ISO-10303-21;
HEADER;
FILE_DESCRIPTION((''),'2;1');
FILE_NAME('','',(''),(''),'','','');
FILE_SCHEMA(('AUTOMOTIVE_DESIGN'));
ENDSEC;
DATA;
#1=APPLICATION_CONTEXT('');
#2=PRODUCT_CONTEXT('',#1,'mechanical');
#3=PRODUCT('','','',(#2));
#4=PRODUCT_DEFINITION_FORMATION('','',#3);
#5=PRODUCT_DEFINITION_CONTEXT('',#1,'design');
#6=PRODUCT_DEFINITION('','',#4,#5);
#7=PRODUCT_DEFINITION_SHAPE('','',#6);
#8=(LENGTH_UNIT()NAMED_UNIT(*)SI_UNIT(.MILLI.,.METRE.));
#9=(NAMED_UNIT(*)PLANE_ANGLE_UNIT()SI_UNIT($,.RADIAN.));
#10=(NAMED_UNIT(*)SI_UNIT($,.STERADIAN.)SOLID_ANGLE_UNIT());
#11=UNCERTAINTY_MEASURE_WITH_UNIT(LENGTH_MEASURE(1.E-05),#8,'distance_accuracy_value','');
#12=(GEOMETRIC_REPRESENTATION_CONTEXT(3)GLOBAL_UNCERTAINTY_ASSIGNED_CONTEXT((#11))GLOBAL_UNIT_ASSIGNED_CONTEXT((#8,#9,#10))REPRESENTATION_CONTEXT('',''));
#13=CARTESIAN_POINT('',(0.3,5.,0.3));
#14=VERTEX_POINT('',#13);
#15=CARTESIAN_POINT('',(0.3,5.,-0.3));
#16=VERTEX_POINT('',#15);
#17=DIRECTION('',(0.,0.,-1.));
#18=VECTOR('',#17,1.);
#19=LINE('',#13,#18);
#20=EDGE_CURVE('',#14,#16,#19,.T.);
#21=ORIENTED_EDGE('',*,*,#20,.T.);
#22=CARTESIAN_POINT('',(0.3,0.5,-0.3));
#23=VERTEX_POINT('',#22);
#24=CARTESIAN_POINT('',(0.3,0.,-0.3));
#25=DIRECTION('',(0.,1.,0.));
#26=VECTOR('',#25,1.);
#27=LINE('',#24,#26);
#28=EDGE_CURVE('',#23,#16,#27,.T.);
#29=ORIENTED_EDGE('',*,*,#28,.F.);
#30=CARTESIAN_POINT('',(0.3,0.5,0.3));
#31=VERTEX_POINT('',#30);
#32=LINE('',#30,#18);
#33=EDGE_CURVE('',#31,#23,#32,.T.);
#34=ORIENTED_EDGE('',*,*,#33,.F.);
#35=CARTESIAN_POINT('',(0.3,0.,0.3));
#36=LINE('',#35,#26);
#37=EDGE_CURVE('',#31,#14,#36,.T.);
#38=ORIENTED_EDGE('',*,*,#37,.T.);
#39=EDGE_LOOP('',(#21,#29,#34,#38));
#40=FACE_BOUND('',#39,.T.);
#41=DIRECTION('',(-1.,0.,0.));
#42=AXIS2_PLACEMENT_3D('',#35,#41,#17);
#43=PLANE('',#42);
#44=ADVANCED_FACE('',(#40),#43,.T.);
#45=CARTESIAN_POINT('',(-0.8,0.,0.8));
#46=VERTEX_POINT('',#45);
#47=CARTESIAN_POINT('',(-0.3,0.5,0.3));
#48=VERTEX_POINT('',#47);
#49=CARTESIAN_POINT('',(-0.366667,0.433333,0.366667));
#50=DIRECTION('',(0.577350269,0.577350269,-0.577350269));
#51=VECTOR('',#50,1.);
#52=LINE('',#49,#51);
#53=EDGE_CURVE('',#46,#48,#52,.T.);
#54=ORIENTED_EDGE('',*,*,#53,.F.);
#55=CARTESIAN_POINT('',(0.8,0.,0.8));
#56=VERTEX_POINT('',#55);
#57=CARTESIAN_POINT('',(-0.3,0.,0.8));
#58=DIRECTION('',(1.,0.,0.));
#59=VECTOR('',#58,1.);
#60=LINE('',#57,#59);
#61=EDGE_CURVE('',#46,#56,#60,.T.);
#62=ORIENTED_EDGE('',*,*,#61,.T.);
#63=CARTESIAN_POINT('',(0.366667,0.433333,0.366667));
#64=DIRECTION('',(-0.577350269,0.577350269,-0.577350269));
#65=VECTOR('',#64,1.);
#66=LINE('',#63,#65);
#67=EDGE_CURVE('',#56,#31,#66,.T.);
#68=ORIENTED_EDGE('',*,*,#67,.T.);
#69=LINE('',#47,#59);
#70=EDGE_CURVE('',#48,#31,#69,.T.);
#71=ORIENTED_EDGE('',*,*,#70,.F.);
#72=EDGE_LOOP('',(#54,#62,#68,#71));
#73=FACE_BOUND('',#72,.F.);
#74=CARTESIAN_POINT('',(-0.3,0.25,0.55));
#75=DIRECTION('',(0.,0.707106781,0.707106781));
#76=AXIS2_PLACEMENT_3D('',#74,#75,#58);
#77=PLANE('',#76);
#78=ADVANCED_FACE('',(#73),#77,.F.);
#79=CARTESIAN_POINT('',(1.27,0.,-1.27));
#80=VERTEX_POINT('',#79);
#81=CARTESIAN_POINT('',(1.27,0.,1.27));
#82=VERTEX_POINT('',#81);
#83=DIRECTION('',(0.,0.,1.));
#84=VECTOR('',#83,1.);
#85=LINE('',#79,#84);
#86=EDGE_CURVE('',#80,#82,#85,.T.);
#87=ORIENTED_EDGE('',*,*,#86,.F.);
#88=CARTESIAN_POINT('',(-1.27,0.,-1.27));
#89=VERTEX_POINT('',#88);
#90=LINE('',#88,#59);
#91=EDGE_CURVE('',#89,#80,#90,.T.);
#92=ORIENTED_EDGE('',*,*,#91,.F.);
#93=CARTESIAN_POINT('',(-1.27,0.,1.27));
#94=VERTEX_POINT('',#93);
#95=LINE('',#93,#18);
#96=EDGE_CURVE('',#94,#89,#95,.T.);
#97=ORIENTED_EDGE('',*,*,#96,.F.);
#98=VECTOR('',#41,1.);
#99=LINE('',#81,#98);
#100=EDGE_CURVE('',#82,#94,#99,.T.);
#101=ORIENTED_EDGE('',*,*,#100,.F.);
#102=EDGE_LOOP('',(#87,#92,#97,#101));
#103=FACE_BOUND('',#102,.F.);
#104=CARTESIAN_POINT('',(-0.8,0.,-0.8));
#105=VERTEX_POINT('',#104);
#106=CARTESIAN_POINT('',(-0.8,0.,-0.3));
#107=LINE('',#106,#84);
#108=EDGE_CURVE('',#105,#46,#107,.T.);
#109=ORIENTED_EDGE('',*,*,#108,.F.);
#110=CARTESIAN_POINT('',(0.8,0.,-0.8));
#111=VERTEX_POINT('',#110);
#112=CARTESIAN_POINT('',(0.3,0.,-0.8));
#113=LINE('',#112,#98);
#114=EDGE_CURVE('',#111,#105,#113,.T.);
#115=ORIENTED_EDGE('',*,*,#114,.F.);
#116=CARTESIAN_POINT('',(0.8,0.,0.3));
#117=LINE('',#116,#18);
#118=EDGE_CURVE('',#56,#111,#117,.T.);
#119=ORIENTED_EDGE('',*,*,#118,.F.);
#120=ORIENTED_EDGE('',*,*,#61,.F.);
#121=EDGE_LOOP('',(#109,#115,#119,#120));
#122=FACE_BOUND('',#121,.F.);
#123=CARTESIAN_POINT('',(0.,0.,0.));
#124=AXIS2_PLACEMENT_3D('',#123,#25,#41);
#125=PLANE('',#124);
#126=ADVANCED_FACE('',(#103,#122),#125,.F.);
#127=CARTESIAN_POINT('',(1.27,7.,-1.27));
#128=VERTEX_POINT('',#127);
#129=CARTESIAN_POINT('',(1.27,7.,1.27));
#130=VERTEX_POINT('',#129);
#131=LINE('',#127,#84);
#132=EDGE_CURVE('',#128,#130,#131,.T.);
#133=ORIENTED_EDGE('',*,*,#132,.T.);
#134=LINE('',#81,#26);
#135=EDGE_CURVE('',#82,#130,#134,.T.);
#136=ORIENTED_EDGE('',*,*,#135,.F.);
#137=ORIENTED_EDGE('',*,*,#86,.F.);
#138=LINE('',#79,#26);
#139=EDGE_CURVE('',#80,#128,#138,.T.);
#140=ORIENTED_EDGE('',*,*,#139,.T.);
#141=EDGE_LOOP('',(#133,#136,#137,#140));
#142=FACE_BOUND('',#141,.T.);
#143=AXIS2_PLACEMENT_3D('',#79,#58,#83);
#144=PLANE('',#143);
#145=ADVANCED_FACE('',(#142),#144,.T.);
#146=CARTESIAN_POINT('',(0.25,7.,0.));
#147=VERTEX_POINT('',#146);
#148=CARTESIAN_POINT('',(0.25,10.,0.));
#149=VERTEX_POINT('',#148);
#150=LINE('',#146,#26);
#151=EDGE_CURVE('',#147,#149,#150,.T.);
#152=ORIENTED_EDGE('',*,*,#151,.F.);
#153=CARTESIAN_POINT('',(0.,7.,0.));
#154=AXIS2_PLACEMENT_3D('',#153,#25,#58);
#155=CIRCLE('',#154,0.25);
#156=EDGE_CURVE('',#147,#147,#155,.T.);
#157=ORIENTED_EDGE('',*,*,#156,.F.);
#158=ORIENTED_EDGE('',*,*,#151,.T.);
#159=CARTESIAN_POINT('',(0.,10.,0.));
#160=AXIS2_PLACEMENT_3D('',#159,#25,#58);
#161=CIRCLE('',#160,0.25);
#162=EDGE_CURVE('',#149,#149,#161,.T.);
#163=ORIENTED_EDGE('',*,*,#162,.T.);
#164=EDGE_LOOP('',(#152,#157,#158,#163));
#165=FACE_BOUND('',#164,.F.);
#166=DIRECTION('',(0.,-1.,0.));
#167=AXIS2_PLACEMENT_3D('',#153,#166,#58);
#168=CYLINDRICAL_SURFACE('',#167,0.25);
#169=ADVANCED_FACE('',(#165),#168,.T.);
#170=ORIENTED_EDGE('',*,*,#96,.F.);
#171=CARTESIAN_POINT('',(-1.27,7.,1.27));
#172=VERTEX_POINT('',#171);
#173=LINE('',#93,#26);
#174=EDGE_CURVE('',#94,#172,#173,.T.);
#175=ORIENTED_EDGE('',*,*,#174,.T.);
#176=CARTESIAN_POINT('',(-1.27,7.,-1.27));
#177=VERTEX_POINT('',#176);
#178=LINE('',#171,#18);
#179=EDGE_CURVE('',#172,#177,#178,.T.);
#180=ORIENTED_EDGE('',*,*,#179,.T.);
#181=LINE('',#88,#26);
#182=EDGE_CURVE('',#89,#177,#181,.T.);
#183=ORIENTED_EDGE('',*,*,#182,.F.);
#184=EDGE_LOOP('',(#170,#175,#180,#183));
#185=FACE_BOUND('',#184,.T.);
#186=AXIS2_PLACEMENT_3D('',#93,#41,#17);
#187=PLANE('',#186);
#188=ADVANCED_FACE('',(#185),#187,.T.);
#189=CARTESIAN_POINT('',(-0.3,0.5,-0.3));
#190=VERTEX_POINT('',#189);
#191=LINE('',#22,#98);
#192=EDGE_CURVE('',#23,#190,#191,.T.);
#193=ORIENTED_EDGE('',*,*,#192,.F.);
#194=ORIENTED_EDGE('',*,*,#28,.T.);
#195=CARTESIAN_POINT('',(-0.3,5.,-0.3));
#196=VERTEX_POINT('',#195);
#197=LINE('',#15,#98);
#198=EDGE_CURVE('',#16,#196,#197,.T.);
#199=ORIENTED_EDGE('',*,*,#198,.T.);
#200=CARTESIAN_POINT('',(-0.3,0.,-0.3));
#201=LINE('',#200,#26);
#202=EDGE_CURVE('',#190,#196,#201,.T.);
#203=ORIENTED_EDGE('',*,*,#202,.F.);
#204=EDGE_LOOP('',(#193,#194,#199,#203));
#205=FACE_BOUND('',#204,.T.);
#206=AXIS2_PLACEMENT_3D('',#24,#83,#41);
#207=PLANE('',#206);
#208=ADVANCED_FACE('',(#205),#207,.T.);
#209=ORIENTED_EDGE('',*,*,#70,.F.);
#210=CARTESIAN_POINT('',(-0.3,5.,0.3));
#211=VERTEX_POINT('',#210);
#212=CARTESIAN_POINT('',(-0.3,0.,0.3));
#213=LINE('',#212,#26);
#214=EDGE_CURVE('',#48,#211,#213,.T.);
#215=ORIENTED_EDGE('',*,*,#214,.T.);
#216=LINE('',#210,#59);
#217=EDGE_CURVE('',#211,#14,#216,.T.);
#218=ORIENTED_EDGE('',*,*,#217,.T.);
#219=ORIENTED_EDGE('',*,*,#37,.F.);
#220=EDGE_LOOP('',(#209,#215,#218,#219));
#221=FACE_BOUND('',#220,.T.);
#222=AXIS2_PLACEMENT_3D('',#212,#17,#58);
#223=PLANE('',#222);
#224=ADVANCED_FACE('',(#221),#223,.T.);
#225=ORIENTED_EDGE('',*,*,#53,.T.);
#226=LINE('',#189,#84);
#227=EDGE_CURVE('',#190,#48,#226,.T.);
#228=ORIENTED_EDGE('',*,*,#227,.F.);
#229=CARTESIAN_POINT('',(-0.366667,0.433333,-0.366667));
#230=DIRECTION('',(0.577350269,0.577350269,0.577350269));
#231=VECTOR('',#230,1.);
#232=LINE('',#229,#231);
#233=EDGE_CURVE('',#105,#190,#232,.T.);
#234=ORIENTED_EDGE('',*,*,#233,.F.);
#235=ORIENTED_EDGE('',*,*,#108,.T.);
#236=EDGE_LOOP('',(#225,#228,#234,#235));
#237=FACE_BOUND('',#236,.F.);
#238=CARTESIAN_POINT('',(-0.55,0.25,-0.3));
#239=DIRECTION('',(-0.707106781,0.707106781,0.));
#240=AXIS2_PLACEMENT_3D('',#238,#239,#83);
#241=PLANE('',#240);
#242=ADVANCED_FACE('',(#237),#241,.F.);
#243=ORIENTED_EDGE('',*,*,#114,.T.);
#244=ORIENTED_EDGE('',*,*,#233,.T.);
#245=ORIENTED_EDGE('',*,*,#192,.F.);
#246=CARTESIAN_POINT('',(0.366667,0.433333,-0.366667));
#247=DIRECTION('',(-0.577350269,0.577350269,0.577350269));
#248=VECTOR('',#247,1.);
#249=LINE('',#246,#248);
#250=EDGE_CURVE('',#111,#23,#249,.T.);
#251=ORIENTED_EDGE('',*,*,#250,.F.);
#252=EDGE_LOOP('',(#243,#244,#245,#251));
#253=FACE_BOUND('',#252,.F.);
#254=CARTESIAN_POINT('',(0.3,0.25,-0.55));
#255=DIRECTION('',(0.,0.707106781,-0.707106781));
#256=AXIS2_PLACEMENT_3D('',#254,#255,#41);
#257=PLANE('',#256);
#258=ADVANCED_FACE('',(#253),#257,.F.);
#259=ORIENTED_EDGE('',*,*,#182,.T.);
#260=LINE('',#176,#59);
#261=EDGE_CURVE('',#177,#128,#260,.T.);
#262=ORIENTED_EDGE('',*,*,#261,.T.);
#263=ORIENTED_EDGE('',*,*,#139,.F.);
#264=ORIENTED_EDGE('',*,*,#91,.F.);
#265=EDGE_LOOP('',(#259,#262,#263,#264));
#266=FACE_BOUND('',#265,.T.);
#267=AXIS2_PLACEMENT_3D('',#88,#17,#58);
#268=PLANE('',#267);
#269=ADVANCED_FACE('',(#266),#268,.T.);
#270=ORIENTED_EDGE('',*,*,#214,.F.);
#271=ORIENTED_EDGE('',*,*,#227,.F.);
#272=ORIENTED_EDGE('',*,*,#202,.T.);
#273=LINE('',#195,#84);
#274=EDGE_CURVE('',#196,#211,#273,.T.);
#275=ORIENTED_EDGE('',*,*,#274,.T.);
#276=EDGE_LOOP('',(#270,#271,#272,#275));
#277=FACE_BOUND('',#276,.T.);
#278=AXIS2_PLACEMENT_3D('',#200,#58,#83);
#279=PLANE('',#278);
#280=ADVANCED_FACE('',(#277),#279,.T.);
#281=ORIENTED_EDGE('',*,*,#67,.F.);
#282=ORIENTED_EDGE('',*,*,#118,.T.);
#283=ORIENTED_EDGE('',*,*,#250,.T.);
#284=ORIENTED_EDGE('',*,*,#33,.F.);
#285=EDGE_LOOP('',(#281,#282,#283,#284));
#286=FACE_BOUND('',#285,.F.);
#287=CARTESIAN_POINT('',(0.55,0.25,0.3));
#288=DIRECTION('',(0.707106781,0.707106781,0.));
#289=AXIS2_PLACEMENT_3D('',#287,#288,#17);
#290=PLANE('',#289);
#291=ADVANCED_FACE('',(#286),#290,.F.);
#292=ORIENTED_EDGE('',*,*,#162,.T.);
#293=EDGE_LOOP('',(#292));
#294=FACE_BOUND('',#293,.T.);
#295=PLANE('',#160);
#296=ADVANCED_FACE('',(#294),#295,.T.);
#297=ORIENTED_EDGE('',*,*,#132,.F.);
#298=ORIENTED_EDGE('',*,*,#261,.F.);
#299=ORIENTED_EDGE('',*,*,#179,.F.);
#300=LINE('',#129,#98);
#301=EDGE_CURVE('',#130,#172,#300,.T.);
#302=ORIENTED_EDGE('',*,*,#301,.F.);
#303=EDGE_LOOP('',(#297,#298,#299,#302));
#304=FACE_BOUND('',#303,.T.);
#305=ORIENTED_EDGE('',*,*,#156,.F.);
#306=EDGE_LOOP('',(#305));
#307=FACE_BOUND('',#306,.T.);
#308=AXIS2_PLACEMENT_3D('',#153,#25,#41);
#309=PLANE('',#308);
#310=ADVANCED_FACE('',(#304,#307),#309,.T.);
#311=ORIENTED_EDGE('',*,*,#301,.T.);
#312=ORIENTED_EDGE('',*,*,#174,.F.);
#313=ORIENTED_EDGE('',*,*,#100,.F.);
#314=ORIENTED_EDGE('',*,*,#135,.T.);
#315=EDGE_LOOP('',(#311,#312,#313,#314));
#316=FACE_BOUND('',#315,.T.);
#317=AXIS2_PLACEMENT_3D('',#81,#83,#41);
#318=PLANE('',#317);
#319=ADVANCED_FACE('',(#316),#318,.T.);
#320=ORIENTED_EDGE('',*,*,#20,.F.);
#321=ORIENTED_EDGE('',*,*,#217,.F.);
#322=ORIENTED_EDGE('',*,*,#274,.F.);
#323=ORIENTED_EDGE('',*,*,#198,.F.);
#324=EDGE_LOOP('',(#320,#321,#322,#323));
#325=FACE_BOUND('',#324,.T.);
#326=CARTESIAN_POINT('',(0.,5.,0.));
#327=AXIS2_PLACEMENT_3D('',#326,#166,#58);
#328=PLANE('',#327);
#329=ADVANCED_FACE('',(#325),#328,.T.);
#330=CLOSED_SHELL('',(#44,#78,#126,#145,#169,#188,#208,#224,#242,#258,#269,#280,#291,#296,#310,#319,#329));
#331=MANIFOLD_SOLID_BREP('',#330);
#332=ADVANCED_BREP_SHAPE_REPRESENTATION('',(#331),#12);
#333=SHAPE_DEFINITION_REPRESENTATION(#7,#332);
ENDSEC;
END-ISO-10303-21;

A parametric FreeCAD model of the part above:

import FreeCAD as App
import Part
import Sketcher


def edges_at(feature, points):
    """Names of the edges that pass closest to the given points."""
    edges = feature.Shape.Edges
    near = lambda p: min(range(len(edges)), key=lambda i: edges[i].distToShape(Part.Vertex(*p))[0])
    return sorted({f"Edge{near(p) + 1}" for p in points})


def add_polygon(sketch, points):
    """Adds a closed chain of lines whose ends are joined by coincident constraints."""
    first, n = sketch.GeometryCount, len(points)
    for a, b in zip(points, points[1:] + points[:1]):
        sketch.addGeometry(Part.LineSegment(App.Vector(*a, 0), App.Vector(*b, 0)), False)
    for i in range(n):
        sketch.addConstraint(Sketcher.Constraint("Coincident", first + i, 2, first + (i + 1) % n, 1))

doc = App.newDocument("Part")
params = doc.addObject("Spreadsheet::Sheet", "Params")
for row, (alias, value) in enumerate([
    ("sketch1_width", "2.54 mm"),
    ("pad1_length", "7 mm"),
    ("sketch2_width", "0.6 mm"),
    ("pocket1_length", "5 mm"),
    ("chamfer_size", "0.5 mm"),
    ("sketch3_diameter", "0.5 mm"),
    ("pad2_length", "3 mm"),
], start=1):
    params.set(f"A{row}", alias)
    params.set(f"B{row}", "=" + value)
    params.setAlias(f"B{row}", alias)

body = doc.addObject("PartDesign::Body", "Body")

# Sketch on XZ plane
sketch1 = body.newObject("Sketcher::SketchObject", "Sketch")
sketch1.AttachmentSupport = (doc.getObject("XZ_Plane"), [""])
sketch1.MapMode = "FlatFace"
add_polygon(sketch1, [(1.27, -1.27), (-1.27, -1.27), (-1.27, 1.27), (1.27, 1.27)])  # lines 0-3
sketch1.addConstraint([
    Sketcher.Constraint("Horizontal", 0),
    Sketcher.Constraint("Vertical", 1),
    Sketcher.Constraint("Horizontal", 2),
    Sketcher.Constraint("Vertical", 3),
    Sketcher.Constraint("Symmetric", 0, 2, 2, 2, -1, 1),
    Sketcher.Constraint("Equal", 2, 1),
    Sketcher.Constraint("DistanceX", 0, 2, 0, 1, 2.54),
])
sketch1.setExpression("Constraints[10]", "Params.sketch1_width")
pad1 = body.newObject("PartDesign::Pad", "Pad")
pad1.Profile = sketch1
pad1.setExpression("Length", "Params.pad1_length")
pad1.Reversed = True

# Sketch on XZ plane
sketch2 = body.newObject("Sketcher::SketchObject", "Sketch001")
sketch2.AttachmentSupport = (doc.getObject("XZ_Plane"), [""])
sketch2.MapMode = "FlatFace"
add_polygon(sketch2, [(0.3, 0.3), (-0.3, 0.3), (-0.3, -0.3), (0.3, -0.3)])  # lines 0-3
sketch2.addConstraint([
    Sketcher.Constraint("Horizontal", 0),
    Sketcher.Constraint("Vertical", 1),
    Sketcher.Constraint("Horizontal", 2),
    Sketcher.Constraint("Vertical", 3),
    Sketcher.Constraint("Symmetric", 0, 2, 2, 2, -1, 1),
    Sketcher.Constraint("Equal", 2, 1),
    Sketcher.Constraint("DistanceX", 0, 2, 0, 1, 0.6),
])
sketch2.setExpression("Constraints[10]", "Params.sketch2_width")
pocket1 = body.newObject("PartDesign::Pocket", "Pocket")
pocket1.Profile = sketch2
pocket1.setExpression("Length", "Params.pocket1_length")
doc.recompute()

chamfer = body.newObject("PartDesign::Chamfer", "Chamfer")
chamfer.Base = (pocket1, edges_at(pocket1, [
    (0, 0, 0.3),
    (0.3, 0, 0),
    (0, 0, -0.3),
    (-0.3, 0, 0),
]))
chamfer.setExpression("Size", "Params.chamfer_size")

# Sketch on XZ plane
sketch3 = body.newObject("Sketcher::SketchObject", "Sketch002")
sketch3.AttachmentSupport = (doc.getObject("XZ_Plane"), [""])
sketch3.MapMode = "FlatFace"
sketch3.AttachmentOffset = App.Placement(App.Vector(0, 0, -7), App.Rotation())
sketch3.addGeometry(Part.Circle(App.Vector(0, 0, 0), App.Vector(0, 0, 1), 0.25), False)
sketch3.addConstraint([
    Sketcher.Constraint("Coincident", 0, 3, -1, 1),
    Sketcher.Constraint("Diameter", 0, 0.5),
])
sketch3.setExpression("Constraints[1]", "Params.sketch3_diameter")
pad2 = body.newObject("PartDesign::Pad", "Pad001")
pad2.Profile = sketch3
pad2.setExpression("Length", "Params.pad2_length")
pad2.Reversed = True

doc.recompute()
